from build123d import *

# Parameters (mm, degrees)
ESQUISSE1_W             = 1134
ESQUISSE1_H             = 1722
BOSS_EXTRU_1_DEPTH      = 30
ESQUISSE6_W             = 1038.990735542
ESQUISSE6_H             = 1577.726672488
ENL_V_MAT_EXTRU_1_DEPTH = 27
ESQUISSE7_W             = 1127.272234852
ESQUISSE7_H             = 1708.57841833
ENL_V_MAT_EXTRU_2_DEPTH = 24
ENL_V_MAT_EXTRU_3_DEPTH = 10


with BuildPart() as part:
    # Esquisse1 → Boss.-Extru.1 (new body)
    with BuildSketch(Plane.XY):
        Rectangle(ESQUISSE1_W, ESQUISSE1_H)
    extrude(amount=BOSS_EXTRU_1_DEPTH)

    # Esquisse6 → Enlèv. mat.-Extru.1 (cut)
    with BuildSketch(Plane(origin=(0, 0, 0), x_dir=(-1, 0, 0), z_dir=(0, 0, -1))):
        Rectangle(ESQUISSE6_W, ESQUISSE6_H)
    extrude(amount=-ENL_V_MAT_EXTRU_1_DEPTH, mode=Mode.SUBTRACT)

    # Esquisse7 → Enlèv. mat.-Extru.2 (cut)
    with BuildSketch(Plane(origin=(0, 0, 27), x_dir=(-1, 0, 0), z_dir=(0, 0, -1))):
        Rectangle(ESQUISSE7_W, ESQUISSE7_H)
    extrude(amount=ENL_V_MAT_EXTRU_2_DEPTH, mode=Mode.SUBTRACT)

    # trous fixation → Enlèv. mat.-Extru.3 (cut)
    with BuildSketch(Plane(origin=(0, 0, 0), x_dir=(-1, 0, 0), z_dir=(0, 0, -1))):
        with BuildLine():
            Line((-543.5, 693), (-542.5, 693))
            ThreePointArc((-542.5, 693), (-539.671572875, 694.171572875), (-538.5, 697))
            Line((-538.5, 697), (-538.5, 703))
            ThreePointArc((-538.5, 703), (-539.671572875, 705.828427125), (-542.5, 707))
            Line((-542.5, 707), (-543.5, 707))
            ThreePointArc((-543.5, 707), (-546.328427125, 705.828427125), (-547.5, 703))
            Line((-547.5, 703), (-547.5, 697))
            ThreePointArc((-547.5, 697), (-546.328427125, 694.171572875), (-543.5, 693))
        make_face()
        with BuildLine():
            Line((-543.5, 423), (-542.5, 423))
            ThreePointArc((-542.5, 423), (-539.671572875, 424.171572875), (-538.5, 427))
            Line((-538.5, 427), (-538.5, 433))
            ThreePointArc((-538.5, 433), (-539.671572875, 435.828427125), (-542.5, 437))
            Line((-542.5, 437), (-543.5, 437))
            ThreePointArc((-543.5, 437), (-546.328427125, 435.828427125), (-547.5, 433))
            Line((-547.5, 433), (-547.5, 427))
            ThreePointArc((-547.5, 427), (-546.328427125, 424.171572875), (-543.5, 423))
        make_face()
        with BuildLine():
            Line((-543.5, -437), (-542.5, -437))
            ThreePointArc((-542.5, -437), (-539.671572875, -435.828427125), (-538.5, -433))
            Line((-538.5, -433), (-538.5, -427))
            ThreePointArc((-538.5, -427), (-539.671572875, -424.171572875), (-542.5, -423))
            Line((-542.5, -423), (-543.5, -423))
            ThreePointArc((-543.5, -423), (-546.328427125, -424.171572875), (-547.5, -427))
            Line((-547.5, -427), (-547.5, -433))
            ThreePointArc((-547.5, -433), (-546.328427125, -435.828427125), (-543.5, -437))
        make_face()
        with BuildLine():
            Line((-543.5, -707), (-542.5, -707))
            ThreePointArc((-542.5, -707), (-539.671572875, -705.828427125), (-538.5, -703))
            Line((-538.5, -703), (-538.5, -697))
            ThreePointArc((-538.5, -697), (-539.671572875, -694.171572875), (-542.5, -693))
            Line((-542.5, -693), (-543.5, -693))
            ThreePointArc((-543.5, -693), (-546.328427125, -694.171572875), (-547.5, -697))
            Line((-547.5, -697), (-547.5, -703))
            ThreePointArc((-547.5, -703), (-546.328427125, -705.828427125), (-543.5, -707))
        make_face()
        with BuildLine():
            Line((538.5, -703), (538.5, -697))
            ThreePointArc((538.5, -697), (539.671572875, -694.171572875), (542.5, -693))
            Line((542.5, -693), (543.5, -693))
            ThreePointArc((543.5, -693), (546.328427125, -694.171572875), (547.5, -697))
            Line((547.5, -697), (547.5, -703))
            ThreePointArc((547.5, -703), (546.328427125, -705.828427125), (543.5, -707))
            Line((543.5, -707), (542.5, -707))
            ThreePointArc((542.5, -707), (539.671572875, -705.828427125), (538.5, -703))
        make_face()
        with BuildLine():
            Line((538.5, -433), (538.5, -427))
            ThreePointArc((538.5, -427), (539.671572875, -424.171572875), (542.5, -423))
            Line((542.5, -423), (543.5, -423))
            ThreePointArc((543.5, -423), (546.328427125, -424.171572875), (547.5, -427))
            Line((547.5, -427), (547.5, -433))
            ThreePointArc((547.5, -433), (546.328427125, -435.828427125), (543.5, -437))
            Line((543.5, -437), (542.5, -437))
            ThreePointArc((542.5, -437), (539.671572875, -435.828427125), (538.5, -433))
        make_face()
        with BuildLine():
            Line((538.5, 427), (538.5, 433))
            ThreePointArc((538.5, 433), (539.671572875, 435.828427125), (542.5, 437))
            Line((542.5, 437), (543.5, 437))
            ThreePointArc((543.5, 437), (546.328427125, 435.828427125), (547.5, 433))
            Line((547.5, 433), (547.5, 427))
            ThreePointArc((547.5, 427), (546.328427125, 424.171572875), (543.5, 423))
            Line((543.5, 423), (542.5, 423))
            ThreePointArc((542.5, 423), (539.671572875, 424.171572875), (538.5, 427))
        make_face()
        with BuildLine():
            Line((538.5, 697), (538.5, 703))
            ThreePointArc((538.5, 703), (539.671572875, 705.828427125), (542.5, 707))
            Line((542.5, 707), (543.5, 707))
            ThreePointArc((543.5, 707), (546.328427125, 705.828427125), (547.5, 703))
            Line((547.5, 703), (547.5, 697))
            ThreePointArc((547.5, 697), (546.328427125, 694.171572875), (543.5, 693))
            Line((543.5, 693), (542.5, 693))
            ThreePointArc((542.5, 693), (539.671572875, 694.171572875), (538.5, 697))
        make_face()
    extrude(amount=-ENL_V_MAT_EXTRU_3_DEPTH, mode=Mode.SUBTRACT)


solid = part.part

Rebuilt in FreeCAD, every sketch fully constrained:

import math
import FreeCAD as App
import Part
import Sketcher

V = App.Vector

doc = App.newDocument("Part")
body = doc.addObject("PartDesign::Body", "Body")

sketch1 = body.newObject("Sketcher::SketchObject", "Sketch")
sketch1.AttachmentSupport = (doc.getObject("XY_Plane"), [""])
sketch1.MapMode = "FlatFace"
sketch1.addGeometry([
    Part.LineSegment(V(-567, 861, 0), V(-567, -861, 0)),
    Part.LineSegment(V(-567, -861, 0), V(567, -861, 0)),
    Part.LineSegment(V(567, -861, 0), V(567, 861, 0)),
    Part.LineSegment(V(567, 861, 0), V(-567, 861, 0)),
], False)
sketch1.addConstraint([
    Sketcher.Constraint("Coincident", 0, 2, 1, 1),
    Sketcher.Constraint("Coincident", 1, 2, 2, 1),
    Sketcher.Constraint("Coincident", 2, 2, 3, 1),
    Sketcher.Constraint("Coincident", 3, 2, 0, 1),
    Sketcher.Constraint("Vertical", 0),
    Sketcher.Constraint("Horizontal", 1),
    Sketcher.Constraint("Vertical", 2),
    Sketcher.Constraint("Horizontal", 3),
    Sketcher.Constraint("Symmetric", 0, 2, 2, 2, -1, 1),
    Sketcher.Constraint("DistanceX", 1, 1, 1, 2, 1134.0),
    Sketcher.Constraint("DistanceY", 0, 2, 0, 1, 1722.0),
])
pad1 = body.newObject("PartDesign::Pad", "Pad")
pad1.Profile = sketch1
pad1.Length = 30

sketch2 = body.newObject("Sketcher::SketchObject", "Sketch001")
sketch2.AttachmentSupport = (doc.getObject("XY_Plane"), [""])
sketch2.MapMode = "FlatFace"
sketch2.addGeometry([
    Part.LineSegment(V(519, 789, 0), V(519, -789, 0)),
    Part.LineSegment(V(519, -789, 0), V(-519, -789, 0)),
    Part.LineSegment(V(-519, -789, 0), V(-519, 789, 0)),
    Part.LineSegment(V(-519, 789, 0), V(519, 789, 0)),
], False)
sketch2.addConstraint([
    Sketcher.Constraint("Coincident", 0, 2, 1, 1),
    Sketcher.Constraint("Coincident", 1, 2, 2, 1),
    Sketcher.Constraint("Coincident", 2, 2, 3, 1),
    Sketcher.Constraint("Coincident", 3, 2, 0, 1),
    Sketcher.Constraint("Vertical", 0),
    Sketcher.Constraint("Horizontal", 1),
    Sketcher.Constraint("Vertical", 2),
    Sketcher.Constraint("Horizontal", 3),
    Sketcher.Constraint("Symmetric", 0, 2, 2, 2, -1, 1),
    Sketcher.Constraint("DistanceX", 1, 2, 1, 1, 1038.990736),
    Sketcher.Constraint("DistanceY", 0, 2, 0, 1, 1577.726672),
])
pocket1 = body.newObject("PartDesign::Pocket", "Pocket")
pocket1.Profile = sketch2
pocket1.Length = 27
pocket1.Reversed = True

sketch3 = body.newObject("Sketcher::SketchObject", "Sketch002")
sketch3.AttachmentSupport = (doc.getObject("XY_Plane"), [""])
sketch3.MapMode = "FlatFace"
sketch3.AttachmentOffset = App.Placement(V(0, 0, 27), App.Rotation())
sketch3.addGeometry([
    Part.LineSegment(V(564, 854, 0), V(564, -854, 0)),
    Part.LineSegment(V(564, -854, 0), V(-564, -854, 0)),
    Part.LineSegment(V(-564, -854, 0), V(-564, 854, 0)),
    Part.LineSegment(V(-564, 854, 0), V(564, 854, 0)),
], False)
sketch3.addConstraint([
    Sketcher.Constraint("Coincident", 0, 2, 1, 1),
    Sketcher.Constraint("Coincident", 1, 2, 2, 1),
    Sketcher.Constraint("Coincident", 2, 2, 3, 1),
    Sketcher.Constraint("Coincident", 3, 2, 0, 1),
    Sketcher.Constraint("Vertical", 0),
    Sketcher.Constraint("Horizontal", 1),
    Sketcher.Constraint("Vertical", 2),
    Sketcher.Constraint("Horizontal", 3),
    Sketcher.Constraint("Symmetric", 0, 2, 2, 2, -1, 1),
    Sketcher.Constraint("DistanceY", 0, 2, 0, 1, 1708.578418),
    Sketcher.Constraint("DistanceX", 1, 2, 1, 1, 1127.272235),
])
pocket2 = body.newObject("PartDesign::Pocket", "Pocket001")
pocket2.Profile = sketch3
pocket2.Length = 24

sketch4 = body.newObject("Sketcher::SketchObject", "Sketch003")
sketch4.AttachmentSupport = (doc.getObject("XY_Plane"), [""])
sketch4.MapMode = "FlatFace"
sketch4.addGeometry([
    Part.LineSegment(V(543.5, 693, 0), V(542.5, 693, 0)),
    Part.ArcOfCircle(Part.Circle(V(542.5, 697, 0), V(0, 0, 1), 4), math.radians(180), math.radians(270)),
    Part.LineSegment(V(538.5, 697, 0), V(538.5, 703, 0)),
    Part.ArcOfCircle(Part.Circle(V(542.5, 703, 0), V(0, 0, 1), 4), math.radians(90), math.radians(180)),
    Part.LineSegment(V(542.5, 707, 0), V(543.5, 707, 0)),
    Part.ArcOfCircle(Part.Circle(V(543.5, 703, 0), V(0, 0, 1), 4), math.radians(0), math.radians(90)),
    Part.LineSegment(V(547.5, 703, 0), V(547.5, 697, 0)),
    Part.ArcOfCircle(Part.Circle(V(543.5, 697, 0), V(0, 0, 1), 4), math.radians(-90), math.radians(0)),
    Part.LineSegment(V(543.5, 423, 0), V(542.5, 423, 0)),
    Part.ArcOfCircle(Part.Circle(V(542.5, 427, 0), V(0, 0, 1), 4), math.radians(180), math.radians(270)),
    Part.LineSegment(V(538.5, 427, 0), V(538.5, 433, 0)),
    Part.ArcOfCircle(Part.Circle(V(542.5, 433, 0), V(0, 0, 1), 4), math.radians(90), math.radians(180)),
    Part.LineSegment(V(542.5, 437, 0), V(543.5, 437, 0)),
    Part.ArcOfCircle(Part.Circle(V(543.5, 433, 0), V(0, 0, 1), 4), math.radians(0), math.radians(90)),
    Part.LineSegment(V(547.5, 433, 0), V(547.5, 427, 0)),
    Part.ArcOfCircle(Part.Circle(V(543.5, 427, 0), V(0, 0, 1), 4), math.radians(-90), math.radians(0)),
    Part.LineSegment(V(543.5, -437, 0), V(542.5, -437, 0)),
    Part.ArcOfCircle(Part.Circle(V(542.5, -433, 0), V(0, 0, 1), 4), math.radians(180), math.radians(270)),
    Part.LineSegment(V(538.5, -433, 0), V(538.5, -427, 0)),
    Part.ArcOfCircle(Part.Circle(V(542.5, -427, 0), V(0, 0, 1), 4), math.radians(90), math.radians(180)),
    Part.LineSegment(V(542.5, -423, 0), V(543.5, -423, 0)),
    Part.ArcOfCircle(Part.Circle(V(543.5, -427, 0), V(0, 0, 1), 4), math.radians(0), math.radians(90)),
    Part.LineSegment(V(547.5, -427, 0), V(547.5, -433, 0)),
    Part.ArcOfCircle(Part.Circle(V(543.5, -433, 0), V(0, 0, 1), 4), math.radians(-90), math.radians(0)),
    Part.LineSegment(V(543.5, -707, 0), V(542.5, -707, 0)),
    Part.ArcOfCircle(Part.Circle(V(542.5, -703, 0), V(0, 0, 1), 4), math.radians(180), math.radians(270)),
    Part.LineSegment(V(538.5, -703, 0), V(538.5, -697, 0)),
    Part.ArcOfCircle(Part.Circle(V(542.5, -697, 0), V(0, 0, 1), 4), math.radians(90), math.radians(180)),
    Part.LineSegment(V(542.5, -693, 0), V(543.5, -693, 0)),
    Part.ArcOfCircle(Part.Circle(V(543.5, -697, 0), V(0, 0, 1), 4), math.radians(0), math.radians(90)),
    Part.LineSegment(V(547.5, -697, 0), V(547.5, -703, 0)),
    Part.ArcOfCircle(Part.Circle(V(543.5, -703, 0), V(0, 0, 1), 4), math.radians(-90), math.radians(0)),
    Part.LineSegment(V(-538.5, -697, 0), V(-538.5, -703, 0)),
    Part.ArcOfCircle(Part.Circle(V(-542.5, -703, 0), V(0, 0, 1), 4), math.radians(-90), math.radians(0)),
    Part.LineSegment(V(-542.5, -707, 0), V(-543.5, -707, 0)),
    Part.ArcOfCircle(Part.Circle(V(-543.5, -703, 0), V(0, 0, 1), 4), math.radians(180), math.radians(270)),
    Part.LineSegment(V(-547.5, -703, 0), V(-547.5, -697, 0)),
    Part.ArcOfCircle(Part.Circle(V(-543.5, -697, 0), V(0, 0, 1), 4), math.radians(90), math.radians(180)),
    Part.LineSegment(V(-543.5, -693, 0), V(-542.5, -693, 0)),
    Part.ArcOfCircle(Part.Circle(V(-542.5, -697, 0), V(0, 0, 1), 4), math.radians(0), math.radians(90)),
    Part.LineSegment(V(-538.5, -427, 0), V(-538.5, -433, 0)),
    Part.ArcOfCircle(Part.Circle(V(-542.5, -433, 0), V(0, 0, 1), 4), math.radians(-90), math.radians(0)),
    Part.LineSegment(V(-542.5, -437, 0), V(-543.5, -437, 0)),
    Part.ArcOfCircle(Part.Circle(V(-543.5, -433, 0), V(0, 0, 1), 4), math.radians(180), math.radians(270)),
    Part.LineSegment(V(-547.5, -433, 0), V(-547.5, -427, 0)),
    Part.ArcOfCircle(Part.Circle(V(-543.5, -427, 0), V(0, 0, 1), 4), math.radians(90), math.radians(180)),
    Part.LineSegment(V(-543.5, -423, 0), V(-542.5, -423, 0)),
    Part.ArcOfCircle(Part.Circle(V(-542.5, -427, 0), V(0, 0, 1), 4), math.radians(0), math.radians(90)),
    Part.LineSegment(V(-538.5, 433, 0), V(-538.5, 427, 0)),
    Part.ArcOfCircle(Part.Circle(V(-542.5, 427, 0), V(0, 0, 1), 4), math.radians(-90), math.radians(0)),
    Part.LineSegment(V(-542.5, 423, 0), V(-543.5, 423, 0)),
    Part.ArcOfCircle(Part.Circle(V(-543.5, 427, 0), V(0, 0, 1), 4), math.radians(180), math.radians(270)),
    Part.LineSegment(V(-547.5, 427, 0), V(-547.5, 433, 0)),
    Part.ArcOfCircle(Part.Circle(V(-543.5, 433, 0), V(0, 0, 1), 4), math.radians(90), math.radians(180)),
    Part.LineSegment(V(-543.5, 437, 0), V(-542.5, 437, 0)),
    Part.ArcOfCircle(Part.Circle(V(-542.5, 433, 0), V(0, 0, 1), 4), math.radians(0), math.radians(90)),
    Part.LineSegment(V(-538.5, 703, 0), V(-538.5, 697, 0)),
    Part.ArcOfCircle(Part.Circle(V(-542.5, 697, 0), V(0, 0, 1), 4), math.radians(-90), math.radians(0)),
    Part.LineSegment(V(-542.5, 693, 0), V(-543.5, 693, 0)),
    Part.ArcOfCircle(Part.Circle(V(-543.5, 697, 0), V(0, 0, 1), 4), math.radians(180), math.radians(270)),
    Part.LineSegment(V(-547.5, 697, 0), V(-547.5, 703, 0)),
    Part.ArcOfCircle(Part.Circle(V(-543.5, 703, 0), V(0, 0, 1), 4), math.radians(90), math.radians(180)),
    Part.LineSegment(V(-543.5, 707, 0), V(-542.5, 707, 0)),
    Part.ArcOfCircle(Part.Circle(V(-542.5, 703, 0), V(0, 0, 1), 4), math.radians(0), math.radians(90)),
], False)
sketch4.addConstraint([
    Sketcher.Constraint("Tangent", 0, 2, 1, 2),
    Sketcher.Constraint("Tangent", 1, 1, 2, 1),
    Sketcher.Constraint("Tangent", 2, 2, 3, 2),
    Sketcher.Constraint("Tangent", 3, 1, 4, 1),
    Sketcher.Constraint("Tangent", 4, 2, 5, 2),
    Sketcher.Constraint("Tangent", 5, 1, 6, 1),
    Sketcher.Constraint("Tangent", 6, 2, 7, 2),
    Sketcher.Constraint("Tangent", 7, 1, 0, 1),
    Sketcher.Constraint("Tangent", 8, 2, 9, 2),
    Sketcher.Constraint("Tangent", 9, 1, 10, 1),
    Sketcher.Constraint("Tangent", 10, 2, 11, 2),
    Sketcher.Constraint("Tangent", 11, 1, 12, 1),
    Sketcher.Constraint("Tangent", 12, 2, 13, 2),
    Sketcher.Constraint("Tangent", 13, 1, 14, 1),
    Sketcher.Constraint("Tangent", 14, 2, 15, 2),
    Sketcher.Constraint("Tangent", 15, 1, 8, 1),
    Sketcher.Constraint("Tangent", 16, 2, 17, 2),
    Sketcher.Constraint("Tangent", 17, 1, 18, 1),
    Sketcher.Constraint("Tangent", 18, 2, 19, 2),
    Sketcher.Constraint("Tangent", 19, 1, 20, 1),
    Sketcher.Constraint("Tangent", 20, 2, 21, 2),
    Sketcher.Constraint("Tangent", 21, 1, 22, 1),
    Sketcher.Constraint("Tangent", 22, 2, 23, 2),
    Sketcher.Constraint("Tangent", 23, 1, 16, 1),
    Sketcher.Constraint("Tangent", 24, 2, 25, 2),
    Sketcher.Constraint("Tangent", 25, 1, 26, 1),
    Sketcher.Constraint("Tangent", 26, 2, 27, 2),
    Sketcher.Constraint("Tangent", 27, 1, 28, 1),
    Sketcher.Constraint("Tangent", 28, 2, 29, 2),
    Sketcher.Constraint("Tangent", 29, 1, 30, 1),
    Sketcher.Constraint("Tangent", 30, 2, 31, 2),
    Sketcher.Constraint("Tangent", 31, 1, 24, 1),
    Sketcher.Constraint("Tangent", 32, 2, 33, 2),
    Sketcher.Constraint("Tangent", 33, 1, 34, 1),
    Sketcher.Constraint("Tangent", 34, 2, 35, 2),
    Sketcher.Constraint("Tangent", 35, 1, 36, 1),
    Sketcher.Constraint("Tangent", 36, 2, 37, 2),
    Sketcher.Constraint("Tangent", 37, 1, 38, 1),
    Sketcher.Constraint("Tangent", 38, 2, 39, 2),
    Sketcher.Constraint("Tangent", 39, 1, 32, 1),
    Sketcher.Constraint("Tangent", 40, 2, 41, 2),
    Sketcher.Constraint("Tangent", 41, 1, 42, 1),
    Sketcher.Constraint("Tangent", 42, 2, 43, 2),
    Sketcher.Constraint("Tangent", 43, 1, 44, 1),
    Sketcher.Constraint("Tangent", 44, 2, 45, 2),
    Sketcher.Constraint("Tangent", 45, 1, 46, 1),
    Sketcher.Constraint("Tangent", 46, 2, 47, 2),
    Sketcher.Constraint("Tangent", 47, 1, 40, 1),
    Sketcher.Constraint("Tangent", 48, 2, 49, 2),
    Sketcher.Constraint("Tangent", 49, 1, 50, 1),
    Sketcher.Constraint("Tangent", 50, 2, 51, 2),
    Sketcher.Constraint("Tangent", 51, 1, 52, 1),
    Sketcher.Constraint("Tangent", 52, 2, 53, 2),
    Sketcher.Constraint("Tangent", 53, 1, 54, 1),
    Sketcher.Constraint("Tangent", 54, 2, 55, 2),
    Sketcher.Constraint("Tangent", 55, 1, 48, 1),
    Sketcher.Constraint("Tangent", 56, 2, 57, 2),
    Sketcher.Constraint("Tangent", 57, 1, 58, 1),
    Sketcher.Constraint("Tangent", 58, 2, 59, 2),
    Sketcher.Constraint("Tangent", 59, 1, 60, 1),
    Sketcher.Constraint("Tangent", 60, 2, 61, 2),
    Sketcher.Constraint("Tangent", 61, 1, 62, 1),
    Sketcher.Constraint("Tangent", 62, 2, 63, 2),
    Sketcher.Constraint("Tangent", 63, 1, 56, 1),
    Sketcher.Constraint("Horizontal", 0),
    Sketcher.Constraint("Vertical", 2),
    Sketcher.Constraint("Horizontal", 4),
    Sketcher.Constraint("Vertical", 6),
    Sketcher.Constraint("Horizontal", 8),
    Sketcher.Constraint("Vertical", 10),
    Sketcher.Constraint("Horizontal", 12),
    Sketcher.Constraint("Vertical", 14),
    Sketcher.Constraint("Horizontal", 16),
    Sketcher.Constraint("Vertical", 18),
    Sketcher.Constraint("Horizontal", 20),
    Sketcher.Constraint("Vertical", 22),
    Sketcher.Constraint("Horizontal", 24),
    Sketcher.Constraint("Vertical", 26),
    Sketcher.Constraint("Horizontal", 28),
    Sketcher.Constraint("Vertical", 30),
    Sketcher.Constraint("Vertical", 32),
    Sketcher.Constraint("Horizontal", 34),
    Sketcher.Constraint("Vertical", 36),
    Sketcher.Constraint("Horizontal", 38),
    Sketcher.Constraint("Vertical", 40),
    Sketcher.Constraint("Horizontal", 42),
    Sketcher.Constraint("Vertical", 44),
    Sketcher.Constraint("Horizontal", 46),
    Sketcher.Constraint("Vertical", 48),
    Sketcher.Constraint("Horizontal", 50),
    Sketcher.Constraint("Vertical", 52),
    Sketcher.Constraint("Horizontal", 54),
    Sketcher.Constraint("Vertical", 56),
    Sketcher.Constraint("Horizontal", 58),
    Sketcher.Constraint("Vertical", 60),
    Sketcher.Constraint("Horizontal", 62),
    Sketcher.Constraint("Equal", 1, 3),
    Sketcher.Constraint("Equal", 3, 5),
    Sketcher.Constraint("Equal", 5, 7),
    Sketcher.Constraint("Equal", 7, 9),
    Sketcher.Constraint("Equal", 9, 11),
    Sketcher.Constraint("Equal", 11, 13),
    Sketcher.Constraint("Equal", 13, 15),
    Sketcher.Constraint("Equal", 15, 17),
    Sketcher.Constraint("Equal", 17, 19),
    Sketcher.Constraint("Equal", 19, 21),
    Sketcher.Constraint("Equal", 21, 23),
    Sketcher.Constraint("Equal", 23, 25),
    Sketcher.Constraint("Equal", 25, 27),
    Sketcher.Constraint("Equal", 27, 29),
    Sketcher.Constraint("Equal", 29, 31),
    Sketcher.Constraint("Equal", 31, 33),
    Sketcher.Constraint("Equal", 33, 35),
    Sketcher.Constraint("Equal", 35, 37),
    Sketcher.Constraint("Equal", 37, 39),
    Sketcher.Constraint("Equal", 39, 41),
    Sketcher.Constraint("Equal", 41, 43),
    Sketcher.Constraint("Equal", 43, 45),
    Sketcher.Constraint("Equal", 45, 47),
    Sketcher.Constraint("Equal", 47, 49),
    Sketcher.Constraint("Equal", 49, 51),
    Sketcher.Constraint("Equal", 51, 53),
    Sketcher.Constraint("Equal", 53, 55),
    Sketcher.Constraint("Equal", 55, 57),
    Sketcher.Constraint("Equal", 57, 59),
    Sketcher.Constraint("Equal", 59, 61),
    Sketcher.Constraint("Equal", 61, 63),
    Sketcher.Constraint("Symmetric", 3, 3, 33, 3, -1, 1),
    Sketcher.Constraint("Symmetric", 7, 3, 37, 3, -1, 1),
    Sketcher.Constraint("Symmetric", 11, 3, 41, 3, -1, 1),
    Sketcher.Constraint("Symmetric", 15, 3, 45, 3, -1, 1),
    Sketcher.Constraint("Symmetric", 19, 3, 49, 3, -1, 1),
    Sketcher.Constraint("Symmetric", 23, 3, 53, 3, -1, 1),
    Sketcher.Constraint("Symmetric", 27, 3, 57, 3, -1, 1),
    Sketcher.Constraint("Symmetric", 31, 3, 61, 3, -1, 1),
    Sketcher.Constraint("Symmetric", 25, 3, 33, 3, -2),
    Sketcher.Constraint("Symmetric", 29, 3, 37, 3, -2),
    Sketcher.Constraint("Symmetric", 17, 3, 41, 3, -2),
    Sketcher.Constraint("Symmetric", 21, 3, 45, 3, -2),
    Sketcher.Constraint("Vertical", 3, 3, 9, 3),
    Sketcher.Constraint("Vertical", 7, 3, 13, 3),
    Sketcher.Constraint("Equal", 6, 10),
    Sketcher.Constraint("Radius", 1, 4.0),
    Sketcher.Constraint("DistanceX", 0, 2, 0, 1, 1.0),
    Sketcher.Constraint("DistanceY", 2, 1, 2, 2, 6.0),
    Sketcher.Constraint("DistanceY", -1, 1, 1, 3, 697.0),
    Sketcher.Constraint("DistanceY", -1, 1, 9, 3, 427.0),
    Sketcher.Constraint("DistanceX", -1, 1, 1, 3, 542.5),
])
pocket3 = body.newObject("PartDesign::Pocket", "Pocket002")
pocket3.Profile = sketch4
pocket3.Length = 10
pocket3.Reversed = True

doc.recompute()
